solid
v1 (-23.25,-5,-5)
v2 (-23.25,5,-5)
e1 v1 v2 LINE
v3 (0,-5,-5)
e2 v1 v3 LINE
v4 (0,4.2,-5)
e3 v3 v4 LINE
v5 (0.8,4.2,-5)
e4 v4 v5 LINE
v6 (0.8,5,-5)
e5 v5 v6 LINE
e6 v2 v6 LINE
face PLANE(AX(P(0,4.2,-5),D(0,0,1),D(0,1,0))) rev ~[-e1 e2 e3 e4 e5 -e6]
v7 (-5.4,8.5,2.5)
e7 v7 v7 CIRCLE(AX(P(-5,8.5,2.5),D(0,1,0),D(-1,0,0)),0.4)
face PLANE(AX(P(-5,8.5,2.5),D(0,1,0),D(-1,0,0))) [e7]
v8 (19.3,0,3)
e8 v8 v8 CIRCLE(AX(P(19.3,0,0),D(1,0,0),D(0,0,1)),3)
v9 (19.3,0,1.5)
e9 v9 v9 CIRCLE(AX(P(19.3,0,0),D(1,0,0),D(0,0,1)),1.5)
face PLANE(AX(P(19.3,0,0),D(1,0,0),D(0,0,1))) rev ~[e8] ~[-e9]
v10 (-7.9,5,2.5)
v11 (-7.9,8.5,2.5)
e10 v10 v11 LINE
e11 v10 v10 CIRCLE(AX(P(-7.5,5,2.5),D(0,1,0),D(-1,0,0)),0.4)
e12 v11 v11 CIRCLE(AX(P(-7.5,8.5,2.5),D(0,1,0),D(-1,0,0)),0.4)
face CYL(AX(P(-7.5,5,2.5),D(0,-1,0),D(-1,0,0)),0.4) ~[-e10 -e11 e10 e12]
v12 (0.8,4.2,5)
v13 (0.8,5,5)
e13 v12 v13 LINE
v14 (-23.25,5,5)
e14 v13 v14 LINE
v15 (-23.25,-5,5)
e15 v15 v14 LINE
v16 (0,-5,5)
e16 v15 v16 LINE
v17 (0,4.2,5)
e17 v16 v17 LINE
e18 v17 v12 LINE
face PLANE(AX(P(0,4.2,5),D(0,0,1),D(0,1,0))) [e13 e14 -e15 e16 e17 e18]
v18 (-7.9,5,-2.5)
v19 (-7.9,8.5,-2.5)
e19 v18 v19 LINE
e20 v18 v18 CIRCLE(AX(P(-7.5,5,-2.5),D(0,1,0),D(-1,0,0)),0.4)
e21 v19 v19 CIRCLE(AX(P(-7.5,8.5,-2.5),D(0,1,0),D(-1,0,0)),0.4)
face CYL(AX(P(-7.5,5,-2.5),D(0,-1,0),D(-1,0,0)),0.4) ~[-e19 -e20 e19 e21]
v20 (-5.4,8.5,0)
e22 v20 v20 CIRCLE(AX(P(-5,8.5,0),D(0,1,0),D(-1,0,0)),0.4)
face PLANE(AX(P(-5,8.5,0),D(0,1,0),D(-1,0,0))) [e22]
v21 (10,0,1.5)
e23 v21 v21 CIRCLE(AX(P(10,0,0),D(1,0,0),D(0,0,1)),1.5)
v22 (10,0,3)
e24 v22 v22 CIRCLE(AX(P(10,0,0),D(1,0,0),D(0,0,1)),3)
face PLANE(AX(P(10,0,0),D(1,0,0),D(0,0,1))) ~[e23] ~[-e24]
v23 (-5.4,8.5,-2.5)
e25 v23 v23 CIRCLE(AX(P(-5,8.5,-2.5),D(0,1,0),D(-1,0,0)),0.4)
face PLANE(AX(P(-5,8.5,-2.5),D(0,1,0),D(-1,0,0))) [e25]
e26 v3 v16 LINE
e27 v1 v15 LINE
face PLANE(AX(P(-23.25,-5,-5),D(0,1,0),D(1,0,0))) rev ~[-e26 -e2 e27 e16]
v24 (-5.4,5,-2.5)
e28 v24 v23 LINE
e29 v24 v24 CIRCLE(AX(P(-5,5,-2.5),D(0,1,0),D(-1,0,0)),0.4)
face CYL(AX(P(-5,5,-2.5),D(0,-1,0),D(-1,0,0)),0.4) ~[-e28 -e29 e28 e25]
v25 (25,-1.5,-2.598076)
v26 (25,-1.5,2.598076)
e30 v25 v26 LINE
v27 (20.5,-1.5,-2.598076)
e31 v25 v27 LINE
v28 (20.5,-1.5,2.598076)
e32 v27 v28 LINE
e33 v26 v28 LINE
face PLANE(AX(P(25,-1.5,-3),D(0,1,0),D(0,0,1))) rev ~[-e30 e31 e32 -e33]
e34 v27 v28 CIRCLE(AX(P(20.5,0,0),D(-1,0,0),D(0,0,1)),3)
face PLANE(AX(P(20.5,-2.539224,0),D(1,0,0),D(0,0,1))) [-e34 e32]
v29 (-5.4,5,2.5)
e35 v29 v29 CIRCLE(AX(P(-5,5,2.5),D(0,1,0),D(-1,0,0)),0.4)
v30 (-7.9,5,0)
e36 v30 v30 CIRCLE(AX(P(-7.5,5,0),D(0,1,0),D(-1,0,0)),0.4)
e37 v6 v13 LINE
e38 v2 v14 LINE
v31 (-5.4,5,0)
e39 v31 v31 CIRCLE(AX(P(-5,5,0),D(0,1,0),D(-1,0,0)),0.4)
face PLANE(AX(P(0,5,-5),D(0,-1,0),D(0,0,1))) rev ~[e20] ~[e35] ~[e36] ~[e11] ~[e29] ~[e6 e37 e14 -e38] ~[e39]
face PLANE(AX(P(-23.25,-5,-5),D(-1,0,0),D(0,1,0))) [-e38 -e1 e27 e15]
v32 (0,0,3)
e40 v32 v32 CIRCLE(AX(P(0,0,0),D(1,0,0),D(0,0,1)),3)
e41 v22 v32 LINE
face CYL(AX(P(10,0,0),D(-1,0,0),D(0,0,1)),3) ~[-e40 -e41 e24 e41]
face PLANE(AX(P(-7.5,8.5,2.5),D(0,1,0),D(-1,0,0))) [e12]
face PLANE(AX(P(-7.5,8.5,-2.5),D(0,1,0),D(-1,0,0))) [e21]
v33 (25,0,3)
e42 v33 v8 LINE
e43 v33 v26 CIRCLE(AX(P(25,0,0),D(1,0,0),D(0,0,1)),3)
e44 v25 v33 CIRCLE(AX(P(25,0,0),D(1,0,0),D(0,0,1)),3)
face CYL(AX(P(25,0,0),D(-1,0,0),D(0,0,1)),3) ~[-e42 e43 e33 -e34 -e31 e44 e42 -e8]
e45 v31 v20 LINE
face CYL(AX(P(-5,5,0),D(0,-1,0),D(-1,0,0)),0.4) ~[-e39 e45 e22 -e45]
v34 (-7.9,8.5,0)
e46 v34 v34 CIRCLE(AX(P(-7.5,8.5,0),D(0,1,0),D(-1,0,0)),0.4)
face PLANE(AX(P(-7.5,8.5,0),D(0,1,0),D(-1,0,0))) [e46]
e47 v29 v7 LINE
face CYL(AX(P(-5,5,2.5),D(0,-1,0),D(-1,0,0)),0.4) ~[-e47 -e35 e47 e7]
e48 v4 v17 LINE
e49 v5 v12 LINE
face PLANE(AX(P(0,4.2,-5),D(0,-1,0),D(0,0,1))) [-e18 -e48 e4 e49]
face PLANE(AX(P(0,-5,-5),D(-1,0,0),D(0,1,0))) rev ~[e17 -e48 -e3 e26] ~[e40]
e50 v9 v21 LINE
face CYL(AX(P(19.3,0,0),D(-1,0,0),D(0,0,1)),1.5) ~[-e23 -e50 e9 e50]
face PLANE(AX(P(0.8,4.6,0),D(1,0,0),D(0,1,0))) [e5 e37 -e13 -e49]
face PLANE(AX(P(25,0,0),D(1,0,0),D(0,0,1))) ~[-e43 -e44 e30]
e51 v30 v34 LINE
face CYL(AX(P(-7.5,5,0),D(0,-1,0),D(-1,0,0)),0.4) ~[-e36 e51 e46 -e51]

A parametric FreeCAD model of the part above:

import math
import FreeCAD as App
import Part
import Sketcher
from FreeCAD import Vector

doc = App.newDocument("Part")
params = doc.addObject("Spreadsheet::Sheet", "Params")
for row, (alias, value) in enumerate([
    ("sketch1_width", "10 mm"),
    ("sketch1_width2", "25 mm"),
    ("sketch1_height", "3 mm"),
    ("sketch1_width3", "5.7 mm"),
    ("sketch1_height2", "1.5 mm"),
    ("revolution_angle", "360 deg"),
    ("sketch2_radius", "3 mm"),
    ("pocket1_length", "4.5 mm"),
    ("sketch3_height", "10 mm"),
    ("sketch3_width", "23.25 mm"),
    ("pad1_length", "10 mm"),
    ("sketch4_diameter", "0.8 mm"),
    ("pad2_length", "3.5 mm"),
    ("sketch5_height", "10 mm"),
    ("sketch5_width", "0.8 mm"),
    ("pad3_length", "0.8 mm"),
], start=1):
    params.set(f"A{row}", alias)
    params.set(f"B{row}", "=" + value)
    params.setAlias(f"B{row}", alias)

body = doc.addObject("PartDesign::Body", "Body")

# Sketch on XZ plane
sketch1 = body.newObject("Sketcher::SketchObject", "Sketch")
sketch1.AttachmentSupport = (doc.getObject("XZ_Plane"), [""])
sketch1.MapMode = "FlatFace"
sketch1.addGeometry(Part.LineSegment(Vector(10, 3, 0), Vector(0, 3, 0)), False)
sketch1.addGeometry(Part.LineSegment(Vector(0, 3, 0), Vector(0, 0, 0)), False)
sketch1.addGeometry(Part.LineSegment(Vector(0, 0, 0), Vector(25, 0, 0)), False)
sketch1.addGeometry(Part.LineSegment(Vector(25, 0, 0), Vector(25, 3, 0)), False)
sketch1.addGeometry(Part.LineSegment(Vector(25, 3, 0), Vector(19.3, 3, 0)), False)
sketch1.addGeometry(Part.LineSegment(Vector(19.3, 3, 0), Vector(19.3, 1.5, 0)), False)
sketch1.addGeometry(Part.LineSegment(Vector(19.3, 1.5, 0), Vector(10, 1.5, 0)), False)
sketch1.addGeometry(Part.LineSegment(Vector(10, 1.5, 0), Vector(10, 3, 0)), False)
sketch1.addConstraint(Sketcher.Constraint("Coincident", 0, 2, 1, 1))
sketch1.addConstraint(Sketcher.Constraint("Coincident", 1, 2, 2, 1))
sketch1.addConstraint(Sketcher.Constraint("Coincident", 2, 2, 3, 1))
sketch1.addConstraint(Sketcher.Constraint("Coincident", 3, 2, 4, 1))
sketch1.addConstraint(Sketcher.Constraint("Coincident", 4, 2, 5, 1))
sketch1.addConstraint(Sketcher.Constraint("Coincident", 5, 2, 6, 1))
sketch1.addConstraint(Sketcher.Constraint("Coincident", 6, 2, 7, 1))
sketch1.addConstraint(Sketcher.Constraint("Coincident", 7, 2, 0, 1))
sketch1.addConstraint(Sketcher.Constraint("Horizontal", 0))
sketch1.addConstraint(Sketcher.Constraint("Vertical", 1))
sketch1.addConstraint(Sketcher.Constraint("Horizontal", 2))
sketch1.addConstraint(Sketcher.Constraint("Vertical", 3))
sketch1.addConstraint(Sketcher.Constraint("Horizontal", 4))
sketch1.addConstraint(Sketcher.Constraint("Vertical", 5))
sketch1.addConstraint(Sketcher.Constraint("Horizontal", 6))
sketch1.addConstraint(Sketcher.Constraint("Vertical", 7))
sketch1.addConstraint(Sketcher.Constraint("Coincident", 1, 2, -1, 1))
sketch1.addConstraint(Sketcher.Constraint("Horizontal", 0, 2, 3, 2))
sketch1.addConstraint(Sketcher.Constraint("DistanceX", 0, 2, 0, 1, 10.0))
sketch1.addConstraint(Sketcher.Constraint("DistanceX", 2, 1, 2, 2, 25.0))
sketch1.addConstraint(Sketcher.Constraint("DistanceY", 1, 2, 1, 1, 3.0))
sketch1.addConstraint(Sketcher.Constraint("DistanceX", 4, 2, 4, 1, 5.7))
sketch1.addConstraint(Sketcher.Constraint("DistanceY", 5, 2, 5, 1, 1.5))
sketch1.setExpression("Constraints[18]", "Params.sketch1_width")
sketch1.setExpression("Constraints[19]", "Params.sketch1_width2")
sketch1.setExpression("Constraints[20]", "Params.sketch1_height")
sketch1.setExpression("Constraints[21]", "Params.sketch1_width3")
sketch1.setExpression("Constraints[22]", "Params.sketch1_height2")
revolution = body.newObject("PartDesign::Revolution", "Revolution")
revolution.Profile = sketch1
revolution.ReferenceAxis = (sketch1, ["H_Axis"])
revolution.setExpression("Angle", "Params.revolution_angle")

# Sketch on YZ plane
sketch2 = body.newObject("Sketcher::SketchObject", "Sketch001")
sketch2.AttachmentSupport = (doc.getObject("YZ_Plane"), [""])
sketch2.MapMode = "FlatFace"
sketch2.AttachmentOffset = App.Placement(Vector(0, 0, 25), App.Rotation())
sketch2.addGeometry(Part.ArcOfCircle(Part.Circle(Vector(-1.499985, 0, 0), Vector(0, 0, 1), 3), math.radians(90.000286), math.radians(269.999714)), False)
sketch2.addGeometry(Part.LineSegment(Vector(-1.5, -3, 0), Vector(-1.5, 3, 0)), False)
sketch2.addConstraint(Sketcher.Constraint("Coincident", 0, 1, 1, 2))
sketch2.addConstraint(Sketcher.Constraint("Coincident", 1, 1, 0, 2))
sketch2.addConstraint(Sketcher.Constraint("Vertical", 1))
sketch2.addConstraint(Sketcher.Constraint("PointOnObject", 0, 3, -1))
sketch2.addConstraint(Sketcher.Constraint("Radius", 0, 3.0))
sketch2.addConstraint(Sketcher.Constraint("DistanceX", 0, 1, -1, 1, 1.5))
sketch2.addConstraint(Sketcher.Constraint("DistanceX", 0, 3, -1, 1, 1.499985))
sketch2.setExpression("Constraints[4]", "Params.sketch2_radius")
pocket1 = body.newObject("PartDesign::Pocket", "Pocket")
pocket1.Profile = sketch2
pocket1.setExpression("Length", "Params.pocket1_length")
body2 = doc.addObject("PartDesign::Body", "Body001")

# Sketch on XY plane
sketch3 = body2.newObject("Sketcher::SketchObject", "Sketch002")
sketch3.AttachmentSupport = (doc.getObject("XY_Plane001"), [""])
sketch3.MapMode = "FlatFace"
sketch3.AttachmentOffset = App.Placement(Vector(0, 0, -5), App.Rotation())
sketch3.addGeometry(Part.LineSegment(Vector(-23.25, 5, 0), Vector(-23.25, -5, 0)), False)
sketch3.addGeometry(Part.LineSegment(Vector(-23.25, -5, 0), Vector(0, -5, 0)), False)
sketch3.addGeometry(Part.LineSegment(Vector(0, -5, 0), Vector(0, 5, 0)), False)
sketch3.addGeometry(Part.LineSegment(Vector(0, 5, 0), Vector(-23.25, 5, 0)), False)
sketch3.addConstraint(Sketcher.Constraint("Coincident", 0, 2, 1, 1))
sketch3.addConstraint(Sketcher.Constraint("Coincident", 1, 2, 2, 1))
sketch3.addConstraint(Sketcher.Constraint("Coincident", 2, 2, 3, 1))
sketch3.addConstraint(Sketcher.Constraint("Coincident", 3, 2, 0, 1))
sketch3.addConstraint(Sketcher.Constraint("Vertical", 0))
sketch3.addConstraint(Sketcher.Constraint("Horizontal", 1))
sketch3.addConstraint(Sketcher.Constraint("Vertical", 2))
sketch3.addConstraint(Sketcher.Constraint("Horizontal", 3))
sketch3.addConstraint(Sketcher.Constraint("Symmetric", 1, 2, 2, 2, -1, 1))
sketch3.addConstraint(Sketcher.Constraint("DistanceY", 0, 2, 0, 1, 10.0))
sketch3.addConstraint(Sketcher.Constraint("DistanceX", 1, 1, 1, 2, 23.25))
sketch3.setExpression("Constraints[9]", "Params.sketch3_height")
sketch3.setExpression("Constraints[10]", "Params.sketch3_width")
pad1 = body2.newObject("PartDesign::Pad", "Pad")
pad1.Profile = sketch3
pad1.setExpression("Length", "Params.pad1_length")

# Sketch on XZ plane
sketch4 = body2.newObject("Sketcher::SketchObject", "Sketch003")
sketch4.AttachmentSupport = (doc.getObject("XZ_Plane001"), [""])
sketch4.MapMode = "FlatFace"
sketch4.AttachmentOffset = App.Placement(Vector(0, 0, -5), App.Rotation())
sketch4.addGeometry(Part.Circle(Vector(-5, 2.5, 0), Vector(0, 0, 1), 0.4), False)
sketch4.addGeometry(Part.Circle(Vector(-5, 0, 0), Vector(0, 0, 1), 0.4), False)
sketch4.addGeometry(Part.Circle(Vector(-5, -2.5, 0), Vector(0, 0, 1), 0.4), False)
sketch4.addGeometry(Part.Circle(Vector(-7.5, 2.5, 0), Vector(0, 0, 1), 0.4), False)
sketch4.addGeometry(Part.Circle(Vector(-7.5, 0, 0), Vector(0, 0, 1), 0.4), False)
sketch4.addGeometry(Part.Circle(Vector(-7.5, -2.5, 0), Vector(0, 0, 1), 0.4), False)
sketch4.addConstraint(Sketcher.Constraint("Equal", 0, 1))
sketch4.addConstraint(Sketcher.Constraint("Equal", 1, 2))
sketch4.addConstraint(Sketcher.Constraint("Equal", 2, 3))
sketch4.addConstraint(Sketcher.Constraint("Equal", 3, 4))
sketch4.addConstraint(Sketcher.Constraint("Equal", 4, 5))
sketch4.addConstraint(Sketcher.Constraint("Symmetric", 0, 3, 2, 3, -1))
sketch4.addConstraint(Sketcher.Constraint("Symmetric", 3, 3, 5, 3, -1))
sketch4.addConstraint(Sketcher.Constraint("PointOnObject", 1, 3, -1))
sketch4.addConstraint(Sketcher.Constraint("PointOnObject", 4, 3, -1))
sketch4.addConstraint(Sketcher.Constraint("Horizontal", 0, 3, 3, 3))
sketch4.addConstraint(Sketcher.Constraint("Vertical", 0, 3, 1, 3))
sketch4.addConstraint(Sketcher.Constraint("Vertical", 3, 3, 4, 3))
sketch4.addConstraint(Sketcher.Constraint("Diameter", 0, 0.8))
sketch4.addConstraint(Sketcher.Constraint("DistanceX", 0, 3, -1, 1, 5.0))
sketch4.addConstraint(Sketcher.Constraint("DistanceY", 2, 3, 0, 3, 5.0))
sketch4.addConstraint(Sketcher.Constraint("DistanceX", 3, 3, -1, 1, 7.5))
sketch4.setExpression("Constraints[12]", "Params.sketch4_diameter")
pad2 = body2.newObject("PartDesign::Pad", "Pad001")
pad2.Profile = sketch4
pad2.setExpression("Length", "Params.pad2_length")
pad2.Reversed = True

# Sketch on YZ plane
sketch5 = body2.newObject("Sketcher::SketchObject", "Sketch004")
sketch5.AttachmentSupport = (doc.getObject("YZ_Plane001"), [""])
sketch5.MapMode = "FlatFace"
sketch5.addGeometry(Part.LineSegment(Vector(4.2, 5, 0), Vector(4.2, -5, 0)), False)
sketch5.addGeometry(Part.LineSegment(Vector(4.2, -5, 0), Vector(5, -5, 0)), False)
sketch5.addGeometry(Part.LineSegment(Vector(5, -5, 0), Vector(5, 5, 0)), False)
sketch5.addGeometry(Part.LineSegment(Vector(5, 5, 0), Vector(4.2, 5, 0)), False)
sketch5.addConstraint(Sketcher.Constraint("Coincident", 0, 2, 1, 1))
sketch5.addConstraint(Sketcher.Constraint("Coincident", 1, 2, 2, 1))
sketch5.addConstraint(Sketcher.Constraint("Coincident", 2, 2, 3, 1))
sketch5.addConstraint(Sketcher.Constraint("Coincident", 3, 2, 0, 1))
sketch5.addConstraint(Sketcher.Constraint("Vertical", 0))
sketch5.addConstraint(Sketcher.Constraint("Horizontal", 1))
sketch5.addConstraint(Sketcher.Constraint("Vertical", 2))
sketch5.addConstraint(Sketcher.Constraint("Horizontal", 3))
sketch5.addConstraint(Sketcher.Constraint("DistanceY", 0, 2, 0, 1, 10.0))
sketch5.addConstraint(Sketcher.Constraint("DistanceX", 1, 1, 1, 2, 0.8))
sketch5.addConstraint(Sketcher.Constraint("DistanceY", 0, 2, -1, 1, 5.0))
sketch5.addConstraint(Sketcher.Constraint("DistanceX", -1, 1, 1, 2, 5.0))
sketch5.setExpression("Constraints[8]", "Params.sketch5_height")
sketch5.setExpression("Constraints[9]", "Params.sketch5_width")
pad3 = body2.newObject("PartDesign::Pad", "Pad002")
pad3.Profile = sketch5
pad3.setExpression("Length", "Params.pad3_length")
doc.recompute()

boolean = body2.newObject("PartDesign::Boolean", "Boolean")
boolean.Type = "Fuse"
boolean.addObjects([body])

doc.recompute()
